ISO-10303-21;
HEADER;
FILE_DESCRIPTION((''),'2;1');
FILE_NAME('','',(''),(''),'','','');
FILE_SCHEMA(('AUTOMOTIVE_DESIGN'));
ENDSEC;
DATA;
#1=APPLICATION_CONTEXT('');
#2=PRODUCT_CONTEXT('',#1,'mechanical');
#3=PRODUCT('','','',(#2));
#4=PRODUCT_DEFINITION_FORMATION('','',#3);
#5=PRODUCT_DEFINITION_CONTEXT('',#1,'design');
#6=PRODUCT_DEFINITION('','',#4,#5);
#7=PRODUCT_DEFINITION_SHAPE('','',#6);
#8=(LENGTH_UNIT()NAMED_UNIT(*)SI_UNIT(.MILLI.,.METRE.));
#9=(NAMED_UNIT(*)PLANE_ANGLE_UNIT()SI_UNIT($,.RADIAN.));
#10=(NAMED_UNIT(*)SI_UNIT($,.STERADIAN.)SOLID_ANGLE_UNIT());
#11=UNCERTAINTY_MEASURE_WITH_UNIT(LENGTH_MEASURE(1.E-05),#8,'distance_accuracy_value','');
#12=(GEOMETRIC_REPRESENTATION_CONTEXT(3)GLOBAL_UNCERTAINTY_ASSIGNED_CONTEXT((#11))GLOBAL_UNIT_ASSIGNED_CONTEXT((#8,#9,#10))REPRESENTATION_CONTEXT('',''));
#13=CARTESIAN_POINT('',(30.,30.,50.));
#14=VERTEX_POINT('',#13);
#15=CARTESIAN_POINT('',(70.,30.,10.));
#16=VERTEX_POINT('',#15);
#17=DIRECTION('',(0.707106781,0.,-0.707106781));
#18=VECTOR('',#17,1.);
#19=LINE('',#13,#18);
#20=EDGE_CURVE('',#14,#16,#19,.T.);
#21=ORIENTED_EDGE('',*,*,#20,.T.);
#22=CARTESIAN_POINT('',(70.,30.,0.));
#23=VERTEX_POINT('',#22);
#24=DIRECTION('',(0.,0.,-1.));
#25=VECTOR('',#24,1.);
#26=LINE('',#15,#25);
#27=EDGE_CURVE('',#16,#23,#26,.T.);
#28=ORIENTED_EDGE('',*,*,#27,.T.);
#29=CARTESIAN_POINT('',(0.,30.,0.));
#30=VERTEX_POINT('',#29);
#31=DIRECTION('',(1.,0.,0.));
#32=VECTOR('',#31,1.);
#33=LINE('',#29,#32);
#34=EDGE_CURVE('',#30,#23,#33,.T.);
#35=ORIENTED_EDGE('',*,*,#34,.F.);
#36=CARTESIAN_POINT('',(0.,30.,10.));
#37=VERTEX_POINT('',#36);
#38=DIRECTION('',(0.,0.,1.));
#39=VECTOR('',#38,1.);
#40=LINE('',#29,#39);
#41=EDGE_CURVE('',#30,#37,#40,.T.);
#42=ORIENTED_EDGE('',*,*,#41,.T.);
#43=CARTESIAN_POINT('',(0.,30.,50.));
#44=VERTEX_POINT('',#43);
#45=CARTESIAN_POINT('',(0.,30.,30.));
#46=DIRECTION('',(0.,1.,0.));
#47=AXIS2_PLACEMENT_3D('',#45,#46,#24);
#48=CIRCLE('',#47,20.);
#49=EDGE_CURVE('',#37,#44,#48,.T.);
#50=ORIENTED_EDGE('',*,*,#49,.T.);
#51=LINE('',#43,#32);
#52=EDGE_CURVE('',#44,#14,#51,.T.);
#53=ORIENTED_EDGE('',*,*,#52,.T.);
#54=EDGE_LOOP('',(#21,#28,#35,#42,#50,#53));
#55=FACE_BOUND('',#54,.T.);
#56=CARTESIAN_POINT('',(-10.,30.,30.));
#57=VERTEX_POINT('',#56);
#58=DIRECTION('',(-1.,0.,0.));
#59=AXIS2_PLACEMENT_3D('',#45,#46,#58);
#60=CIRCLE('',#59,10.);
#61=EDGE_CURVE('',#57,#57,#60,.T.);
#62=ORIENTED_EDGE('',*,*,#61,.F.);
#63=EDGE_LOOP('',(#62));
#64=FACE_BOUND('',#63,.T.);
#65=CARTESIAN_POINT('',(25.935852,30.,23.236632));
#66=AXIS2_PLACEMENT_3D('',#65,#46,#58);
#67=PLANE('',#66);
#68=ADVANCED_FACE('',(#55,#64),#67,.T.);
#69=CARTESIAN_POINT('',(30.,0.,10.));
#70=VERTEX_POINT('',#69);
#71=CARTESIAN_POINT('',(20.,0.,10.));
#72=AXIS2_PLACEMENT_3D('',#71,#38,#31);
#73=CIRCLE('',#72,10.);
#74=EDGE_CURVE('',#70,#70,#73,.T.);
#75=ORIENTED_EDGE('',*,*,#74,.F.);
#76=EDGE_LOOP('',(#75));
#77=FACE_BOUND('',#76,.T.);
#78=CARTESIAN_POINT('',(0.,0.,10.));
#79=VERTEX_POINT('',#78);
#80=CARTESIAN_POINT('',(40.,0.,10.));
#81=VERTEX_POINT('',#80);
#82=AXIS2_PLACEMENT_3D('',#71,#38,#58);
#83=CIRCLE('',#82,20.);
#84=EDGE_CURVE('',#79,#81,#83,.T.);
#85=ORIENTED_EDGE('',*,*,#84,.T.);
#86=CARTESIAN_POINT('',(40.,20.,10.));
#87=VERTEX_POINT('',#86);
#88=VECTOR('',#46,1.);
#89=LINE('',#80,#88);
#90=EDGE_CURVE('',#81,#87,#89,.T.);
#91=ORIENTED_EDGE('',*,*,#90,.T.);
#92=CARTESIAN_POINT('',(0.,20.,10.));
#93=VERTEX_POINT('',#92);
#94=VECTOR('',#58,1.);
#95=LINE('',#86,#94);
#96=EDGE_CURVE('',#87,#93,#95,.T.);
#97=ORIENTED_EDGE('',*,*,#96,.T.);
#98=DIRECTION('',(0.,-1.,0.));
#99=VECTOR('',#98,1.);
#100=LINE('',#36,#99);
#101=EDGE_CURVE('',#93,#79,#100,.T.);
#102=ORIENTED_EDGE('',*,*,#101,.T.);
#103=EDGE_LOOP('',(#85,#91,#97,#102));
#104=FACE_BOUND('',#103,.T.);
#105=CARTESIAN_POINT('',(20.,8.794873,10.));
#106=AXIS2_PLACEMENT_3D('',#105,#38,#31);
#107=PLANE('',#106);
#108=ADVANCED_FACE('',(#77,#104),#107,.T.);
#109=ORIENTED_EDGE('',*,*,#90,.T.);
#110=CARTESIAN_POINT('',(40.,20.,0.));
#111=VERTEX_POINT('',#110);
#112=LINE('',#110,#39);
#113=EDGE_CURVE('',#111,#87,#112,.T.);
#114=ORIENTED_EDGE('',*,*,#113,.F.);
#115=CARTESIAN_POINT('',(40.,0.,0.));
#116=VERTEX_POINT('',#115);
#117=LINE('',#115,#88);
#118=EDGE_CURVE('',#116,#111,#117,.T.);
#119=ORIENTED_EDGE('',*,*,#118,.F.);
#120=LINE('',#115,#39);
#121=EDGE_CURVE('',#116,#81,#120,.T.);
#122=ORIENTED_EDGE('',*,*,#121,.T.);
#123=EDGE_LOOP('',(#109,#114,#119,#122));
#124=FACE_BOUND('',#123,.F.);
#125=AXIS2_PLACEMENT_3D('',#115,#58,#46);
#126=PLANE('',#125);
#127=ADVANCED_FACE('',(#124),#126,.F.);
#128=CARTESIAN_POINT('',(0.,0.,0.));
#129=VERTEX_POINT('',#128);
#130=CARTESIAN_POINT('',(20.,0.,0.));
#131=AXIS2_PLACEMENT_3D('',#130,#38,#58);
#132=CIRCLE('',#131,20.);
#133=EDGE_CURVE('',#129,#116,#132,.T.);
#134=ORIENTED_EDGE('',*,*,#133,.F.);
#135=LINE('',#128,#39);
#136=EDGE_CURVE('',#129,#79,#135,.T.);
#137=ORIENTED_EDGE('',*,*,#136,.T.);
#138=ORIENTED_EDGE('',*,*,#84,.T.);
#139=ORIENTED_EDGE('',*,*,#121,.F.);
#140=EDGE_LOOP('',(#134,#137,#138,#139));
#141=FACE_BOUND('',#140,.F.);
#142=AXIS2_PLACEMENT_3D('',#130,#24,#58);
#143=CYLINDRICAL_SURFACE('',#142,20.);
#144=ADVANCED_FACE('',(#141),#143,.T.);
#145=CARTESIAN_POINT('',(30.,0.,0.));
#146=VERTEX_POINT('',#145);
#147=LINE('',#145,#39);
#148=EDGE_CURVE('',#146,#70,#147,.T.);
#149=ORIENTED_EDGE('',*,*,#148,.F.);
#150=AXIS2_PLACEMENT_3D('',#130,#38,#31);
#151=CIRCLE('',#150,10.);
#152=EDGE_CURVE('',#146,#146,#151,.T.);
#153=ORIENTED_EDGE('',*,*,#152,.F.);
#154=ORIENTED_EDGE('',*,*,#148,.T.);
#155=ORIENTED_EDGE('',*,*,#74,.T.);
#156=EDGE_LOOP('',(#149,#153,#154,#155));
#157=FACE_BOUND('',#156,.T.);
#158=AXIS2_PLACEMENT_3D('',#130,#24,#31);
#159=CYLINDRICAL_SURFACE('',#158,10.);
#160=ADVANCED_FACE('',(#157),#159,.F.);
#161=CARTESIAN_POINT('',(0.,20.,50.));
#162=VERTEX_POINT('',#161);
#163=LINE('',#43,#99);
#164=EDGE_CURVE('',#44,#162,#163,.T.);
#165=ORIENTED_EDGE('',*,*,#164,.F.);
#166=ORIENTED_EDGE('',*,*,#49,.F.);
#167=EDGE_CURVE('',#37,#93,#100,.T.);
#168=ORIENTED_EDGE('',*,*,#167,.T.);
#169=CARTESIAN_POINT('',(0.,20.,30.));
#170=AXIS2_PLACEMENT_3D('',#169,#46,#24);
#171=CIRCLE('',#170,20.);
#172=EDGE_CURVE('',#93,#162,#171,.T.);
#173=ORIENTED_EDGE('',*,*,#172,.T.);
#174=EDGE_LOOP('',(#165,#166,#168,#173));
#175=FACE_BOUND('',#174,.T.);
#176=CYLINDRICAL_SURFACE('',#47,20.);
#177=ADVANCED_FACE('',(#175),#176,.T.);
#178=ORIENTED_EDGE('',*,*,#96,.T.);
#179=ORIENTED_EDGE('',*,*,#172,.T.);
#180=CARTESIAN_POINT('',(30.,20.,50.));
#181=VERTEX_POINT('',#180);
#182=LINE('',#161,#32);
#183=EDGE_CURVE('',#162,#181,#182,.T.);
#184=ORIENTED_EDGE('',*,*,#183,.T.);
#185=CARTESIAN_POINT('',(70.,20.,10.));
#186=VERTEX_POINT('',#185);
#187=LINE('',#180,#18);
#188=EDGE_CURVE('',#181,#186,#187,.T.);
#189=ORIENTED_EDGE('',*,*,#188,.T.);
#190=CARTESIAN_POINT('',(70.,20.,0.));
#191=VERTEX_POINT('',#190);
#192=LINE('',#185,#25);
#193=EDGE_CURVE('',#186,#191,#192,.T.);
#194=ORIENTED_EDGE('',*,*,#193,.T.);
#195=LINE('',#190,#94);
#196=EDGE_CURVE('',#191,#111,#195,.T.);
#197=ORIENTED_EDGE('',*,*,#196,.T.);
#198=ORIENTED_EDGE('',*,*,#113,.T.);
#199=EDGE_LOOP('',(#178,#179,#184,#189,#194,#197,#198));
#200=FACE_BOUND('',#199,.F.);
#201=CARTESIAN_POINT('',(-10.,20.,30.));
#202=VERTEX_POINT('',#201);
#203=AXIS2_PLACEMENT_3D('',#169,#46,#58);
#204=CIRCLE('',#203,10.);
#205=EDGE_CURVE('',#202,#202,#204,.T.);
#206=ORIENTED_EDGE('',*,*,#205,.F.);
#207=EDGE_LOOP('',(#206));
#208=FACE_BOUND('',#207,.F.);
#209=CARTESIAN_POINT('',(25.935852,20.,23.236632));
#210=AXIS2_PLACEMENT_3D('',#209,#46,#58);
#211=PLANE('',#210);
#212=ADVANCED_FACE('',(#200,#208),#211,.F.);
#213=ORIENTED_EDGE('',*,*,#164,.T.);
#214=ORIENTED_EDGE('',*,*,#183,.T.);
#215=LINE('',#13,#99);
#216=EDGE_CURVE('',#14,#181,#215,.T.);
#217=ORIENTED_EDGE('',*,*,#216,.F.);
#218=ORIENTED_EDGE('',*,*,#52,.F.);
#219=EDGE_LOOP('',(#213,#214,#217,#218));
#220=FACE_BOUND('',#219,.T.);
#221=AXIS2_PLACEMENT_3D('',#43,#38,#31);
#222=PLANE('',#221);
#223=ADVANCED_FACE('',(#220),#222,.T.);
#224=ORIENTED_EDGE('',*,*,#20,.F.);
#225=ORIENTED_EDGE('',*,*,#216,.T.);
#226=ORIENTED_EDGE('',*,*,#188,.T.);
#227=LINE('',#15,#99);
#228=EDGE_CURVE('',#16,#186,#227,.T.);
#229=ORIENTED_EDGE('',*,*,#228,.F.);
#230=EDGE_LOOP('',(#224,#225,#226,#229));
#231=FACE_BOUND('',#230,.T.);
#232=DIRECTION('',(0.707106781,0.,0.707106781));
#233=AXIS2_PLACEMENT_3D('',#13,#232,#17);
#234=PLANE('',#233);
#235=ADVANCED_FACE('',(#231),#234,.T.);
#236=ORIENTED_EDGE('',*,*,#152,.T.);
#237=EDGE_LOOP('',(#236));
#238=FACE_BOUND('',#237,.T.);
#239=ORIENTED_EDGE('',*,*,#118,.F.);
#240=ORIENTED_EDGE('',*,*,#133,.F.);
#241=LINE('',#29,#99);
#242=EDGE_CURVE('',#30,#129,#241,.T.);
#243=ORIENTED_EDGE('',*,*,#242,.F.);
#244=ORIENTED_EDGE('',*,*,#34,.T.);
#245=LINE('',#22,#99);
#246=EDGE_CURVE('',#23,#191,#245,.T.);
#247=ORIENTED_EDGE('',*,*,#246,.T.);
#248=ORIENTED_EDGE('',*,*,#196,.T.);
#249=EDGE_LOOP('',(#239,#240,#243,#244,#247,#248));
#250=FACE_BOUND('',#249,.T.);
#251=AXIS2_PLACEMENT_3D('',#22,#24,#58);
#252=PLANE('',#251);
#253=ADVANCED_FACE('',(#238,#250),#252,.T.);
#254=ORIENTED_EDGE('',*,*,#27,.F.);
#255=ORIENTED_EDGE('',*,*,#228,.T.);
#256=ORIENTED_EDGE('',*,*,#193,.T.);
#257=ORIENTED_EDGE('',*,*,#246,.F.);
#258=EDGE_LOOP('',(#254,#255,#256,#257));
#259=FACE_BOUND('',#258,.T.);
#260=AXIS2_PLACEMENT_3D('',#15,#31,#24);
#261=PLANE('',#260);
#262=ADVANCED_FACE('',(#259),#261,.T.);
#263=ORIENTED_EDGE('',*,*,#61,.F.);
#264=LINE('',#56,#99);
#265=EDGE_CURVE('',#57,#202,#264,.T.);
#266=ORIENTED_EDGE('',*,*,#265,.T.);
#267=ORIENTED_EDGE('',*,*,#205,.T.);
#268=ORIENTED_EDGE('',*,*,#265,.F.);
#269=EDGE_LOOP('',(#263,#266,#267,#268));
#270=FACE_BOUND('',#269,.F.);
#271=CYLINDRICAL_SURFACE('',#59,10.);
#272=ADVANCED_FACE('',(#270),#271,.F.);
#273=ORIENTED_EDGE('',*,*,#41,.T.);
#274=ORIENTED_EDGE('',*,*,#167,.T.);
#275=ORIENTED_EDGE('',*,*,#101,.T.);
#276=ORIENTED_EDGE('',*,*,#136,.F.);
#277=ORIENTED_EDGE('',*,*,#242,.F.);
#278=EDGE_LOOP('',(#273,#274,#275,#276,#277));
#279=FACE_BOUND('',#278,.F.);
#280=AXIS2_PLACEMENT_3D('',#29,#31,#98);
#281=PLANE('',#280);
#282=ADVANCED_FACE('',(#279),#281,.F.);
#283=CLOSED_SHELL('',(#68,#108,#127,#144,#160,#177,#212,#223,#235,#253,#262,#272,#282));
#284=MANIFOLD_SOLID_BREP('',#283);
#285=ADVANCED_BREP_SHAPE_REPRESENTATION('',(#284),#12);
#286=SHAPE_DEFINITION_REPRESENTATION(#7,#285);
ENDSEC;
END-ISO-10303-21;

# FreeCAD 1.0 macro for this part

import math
import FreeCAD as App
import Part
import Sketcher
from FreeCAD import Vector

doc = App.newDocument("Part")
body = doc.addObject("PartDesign::Body", "Body")

# Sketch on XY plane
sketch1 = body.newObject("Sketcher::SketchObject", "Sketch")
sketch1.AttachmentSupport = (doc.getObject("XY_Plane"), [""])
sketch1.MapMode = "FlatFace"
sketch1.addGeometry([
    Part.LineSegment(Vector(40, 30, 0), Vector(0, 30, 0)),  # 0
    Part.LineSegment(Vector(0, 30, 0), Vector(0, 0, 0)),  # 1
    Part.ArcOfCircle(Part.Circle(Vector(20, 0, 0), Vector(0, 0, 1), 20), math.radians(180), math.radians(360)),  # 2
    Part.LineSegment(Vector(40, 0, 0), Vector(40, 30, 0)),  # 3
    Part.Circle(Vector(20, 0, 0), Vector(0, 0, 1), 10),  # 4
], False)
sketch1.addConstraint([
    Sketcher.Constraint("Coincident", 0, 2, 1, 1),
    Sketcher.Constraint("Tangent", 1, 2, 2, 1),
    Sketcher.Constraint("Tangent", 2, 2, 3, 1),
    Sketcher.Constraint("Coincident", 3, 2, 0, 1),
    Sketcher.Constraint("Horizontal", 0),
    Sketcher.Constraint("Vertical", 1),
    Sketcher.Constraint("Vertical", 3),
    Sketcher.Constraint("Coincident", 1, 2, -1, 1),
    Sketcher.Constraint("Coincident", 4, 3, 2, 3),
    Sketcher.Constraint("Diameter", 4, 20.0),
    Sketcher.Constraint("Radius", 2, 20.0),
    Sketcher.Constraint("DistanceY", 1, 2, 1, 1, 30.0),
])
pad1 = body.newObject("PartDesign::Pad", "Pad")
pad1.Profile = sketch1
pad1.Length = 10

# Sketch on XZ plane
sketch2 = body.newObject("Sketcher::SketchObject", "Sketch001")
sketch2.AttachmentSupport = (doc.getObject("XZ_Plane"), [""])
sketch2.MapMode = "FlatFace"
sketch2.AttachmentOffset = App.Placement(Vector(0, 0, -30), App.Rotation())
sketch2.addGeometry([
    Part.LineSegment(Vector(70, 0, 0), Vector(40, 0, 0)),  # 0
    Part.LineSegment(Vector(40, 0, 0), Vector(40, 10, 0)),  # 1
    Part.LineSegment(Vector(40, 10, 0), Vector(0, 10, 0)),  # 2
    Part.ArcOfCircle(Part.Circle(Vector(0, 30, 0), Vector(0, 0, 1), 20), math.radians(90), math.radians(270)),  # 3
    Part.LineSegment(Vector(0, 50, 0), Vector(30, 50, 0)),  # 4
    Part.LineSegment(Vector(30, 50, 0), Vector(70, 10, 0)),  # 5
    Part.LineSegment(Vector(70, 10, 0), Vector(70, 0, 0)),  # 6
    Part.Circle(Vector(0, 30, 0), Vector(0, 0, 1), 10),  # 7
], False)
sketch2.addConstraint([
    Sketcher.Constraint("Coincident", 0, 2, 1, 1),
    Sketcher.Constraint("Coincident", 1, 2, 2, 1),
    Sketcher.Constraint("Tangent", 2, 2, 3, 2),
    Sketcher.Constraint("Tangent", 3, 1, 4, 1),
    Sketcher.Constraint("Coincident", 4, 2, 5, 1),
    Sketcher.Constraint("Coincident", 5, 2, 6, 1),
    Sketcher.Constraint("Coincident", 6, 2, 0, 1),
    Sketcher.Constraint("Horizontal", 0),
    Sketcher.Constraint("Vertical", 1),
    Sketcher.Constraint("Horizontal", 2),
    Sketcher.Constraint("Horizontal", 4),
    Sketcher.Constraint("Vertical", 6),
    Sketcher.Constraint("Coincident", 7, 3, 3, 3),
    Sketcher.Constraint("PointOnObject", 3, 3, -2),
    Sketcher.Constraint("PointOnObject", 0, 2, -1),
    Sketcher.Constraint("Horizontal", 2, 2, 5, 2),
    Sketcher.Constraint("Equal", 0, 4),
    Sketcher.Constraint("Diameter", 7, 20.0),
    Sketcher.Constraint("Radius", 3, 20.0),
    Sketcher.Constraint("DistanceX", 0, 2, 0, 1, 30.0),
    Sketcher.Constraint("DistanceX", 2, 2, 2, 1, 40.0),
    Sketcher.Constraint("DistanceY", 1, 1, 1, 2, 10.0),
])
pad2 = body.newObject("PartDesign::Pad", "Pad001")
pad2.Profile = sketch2
pad2.Length = 10

doc.recompute()
